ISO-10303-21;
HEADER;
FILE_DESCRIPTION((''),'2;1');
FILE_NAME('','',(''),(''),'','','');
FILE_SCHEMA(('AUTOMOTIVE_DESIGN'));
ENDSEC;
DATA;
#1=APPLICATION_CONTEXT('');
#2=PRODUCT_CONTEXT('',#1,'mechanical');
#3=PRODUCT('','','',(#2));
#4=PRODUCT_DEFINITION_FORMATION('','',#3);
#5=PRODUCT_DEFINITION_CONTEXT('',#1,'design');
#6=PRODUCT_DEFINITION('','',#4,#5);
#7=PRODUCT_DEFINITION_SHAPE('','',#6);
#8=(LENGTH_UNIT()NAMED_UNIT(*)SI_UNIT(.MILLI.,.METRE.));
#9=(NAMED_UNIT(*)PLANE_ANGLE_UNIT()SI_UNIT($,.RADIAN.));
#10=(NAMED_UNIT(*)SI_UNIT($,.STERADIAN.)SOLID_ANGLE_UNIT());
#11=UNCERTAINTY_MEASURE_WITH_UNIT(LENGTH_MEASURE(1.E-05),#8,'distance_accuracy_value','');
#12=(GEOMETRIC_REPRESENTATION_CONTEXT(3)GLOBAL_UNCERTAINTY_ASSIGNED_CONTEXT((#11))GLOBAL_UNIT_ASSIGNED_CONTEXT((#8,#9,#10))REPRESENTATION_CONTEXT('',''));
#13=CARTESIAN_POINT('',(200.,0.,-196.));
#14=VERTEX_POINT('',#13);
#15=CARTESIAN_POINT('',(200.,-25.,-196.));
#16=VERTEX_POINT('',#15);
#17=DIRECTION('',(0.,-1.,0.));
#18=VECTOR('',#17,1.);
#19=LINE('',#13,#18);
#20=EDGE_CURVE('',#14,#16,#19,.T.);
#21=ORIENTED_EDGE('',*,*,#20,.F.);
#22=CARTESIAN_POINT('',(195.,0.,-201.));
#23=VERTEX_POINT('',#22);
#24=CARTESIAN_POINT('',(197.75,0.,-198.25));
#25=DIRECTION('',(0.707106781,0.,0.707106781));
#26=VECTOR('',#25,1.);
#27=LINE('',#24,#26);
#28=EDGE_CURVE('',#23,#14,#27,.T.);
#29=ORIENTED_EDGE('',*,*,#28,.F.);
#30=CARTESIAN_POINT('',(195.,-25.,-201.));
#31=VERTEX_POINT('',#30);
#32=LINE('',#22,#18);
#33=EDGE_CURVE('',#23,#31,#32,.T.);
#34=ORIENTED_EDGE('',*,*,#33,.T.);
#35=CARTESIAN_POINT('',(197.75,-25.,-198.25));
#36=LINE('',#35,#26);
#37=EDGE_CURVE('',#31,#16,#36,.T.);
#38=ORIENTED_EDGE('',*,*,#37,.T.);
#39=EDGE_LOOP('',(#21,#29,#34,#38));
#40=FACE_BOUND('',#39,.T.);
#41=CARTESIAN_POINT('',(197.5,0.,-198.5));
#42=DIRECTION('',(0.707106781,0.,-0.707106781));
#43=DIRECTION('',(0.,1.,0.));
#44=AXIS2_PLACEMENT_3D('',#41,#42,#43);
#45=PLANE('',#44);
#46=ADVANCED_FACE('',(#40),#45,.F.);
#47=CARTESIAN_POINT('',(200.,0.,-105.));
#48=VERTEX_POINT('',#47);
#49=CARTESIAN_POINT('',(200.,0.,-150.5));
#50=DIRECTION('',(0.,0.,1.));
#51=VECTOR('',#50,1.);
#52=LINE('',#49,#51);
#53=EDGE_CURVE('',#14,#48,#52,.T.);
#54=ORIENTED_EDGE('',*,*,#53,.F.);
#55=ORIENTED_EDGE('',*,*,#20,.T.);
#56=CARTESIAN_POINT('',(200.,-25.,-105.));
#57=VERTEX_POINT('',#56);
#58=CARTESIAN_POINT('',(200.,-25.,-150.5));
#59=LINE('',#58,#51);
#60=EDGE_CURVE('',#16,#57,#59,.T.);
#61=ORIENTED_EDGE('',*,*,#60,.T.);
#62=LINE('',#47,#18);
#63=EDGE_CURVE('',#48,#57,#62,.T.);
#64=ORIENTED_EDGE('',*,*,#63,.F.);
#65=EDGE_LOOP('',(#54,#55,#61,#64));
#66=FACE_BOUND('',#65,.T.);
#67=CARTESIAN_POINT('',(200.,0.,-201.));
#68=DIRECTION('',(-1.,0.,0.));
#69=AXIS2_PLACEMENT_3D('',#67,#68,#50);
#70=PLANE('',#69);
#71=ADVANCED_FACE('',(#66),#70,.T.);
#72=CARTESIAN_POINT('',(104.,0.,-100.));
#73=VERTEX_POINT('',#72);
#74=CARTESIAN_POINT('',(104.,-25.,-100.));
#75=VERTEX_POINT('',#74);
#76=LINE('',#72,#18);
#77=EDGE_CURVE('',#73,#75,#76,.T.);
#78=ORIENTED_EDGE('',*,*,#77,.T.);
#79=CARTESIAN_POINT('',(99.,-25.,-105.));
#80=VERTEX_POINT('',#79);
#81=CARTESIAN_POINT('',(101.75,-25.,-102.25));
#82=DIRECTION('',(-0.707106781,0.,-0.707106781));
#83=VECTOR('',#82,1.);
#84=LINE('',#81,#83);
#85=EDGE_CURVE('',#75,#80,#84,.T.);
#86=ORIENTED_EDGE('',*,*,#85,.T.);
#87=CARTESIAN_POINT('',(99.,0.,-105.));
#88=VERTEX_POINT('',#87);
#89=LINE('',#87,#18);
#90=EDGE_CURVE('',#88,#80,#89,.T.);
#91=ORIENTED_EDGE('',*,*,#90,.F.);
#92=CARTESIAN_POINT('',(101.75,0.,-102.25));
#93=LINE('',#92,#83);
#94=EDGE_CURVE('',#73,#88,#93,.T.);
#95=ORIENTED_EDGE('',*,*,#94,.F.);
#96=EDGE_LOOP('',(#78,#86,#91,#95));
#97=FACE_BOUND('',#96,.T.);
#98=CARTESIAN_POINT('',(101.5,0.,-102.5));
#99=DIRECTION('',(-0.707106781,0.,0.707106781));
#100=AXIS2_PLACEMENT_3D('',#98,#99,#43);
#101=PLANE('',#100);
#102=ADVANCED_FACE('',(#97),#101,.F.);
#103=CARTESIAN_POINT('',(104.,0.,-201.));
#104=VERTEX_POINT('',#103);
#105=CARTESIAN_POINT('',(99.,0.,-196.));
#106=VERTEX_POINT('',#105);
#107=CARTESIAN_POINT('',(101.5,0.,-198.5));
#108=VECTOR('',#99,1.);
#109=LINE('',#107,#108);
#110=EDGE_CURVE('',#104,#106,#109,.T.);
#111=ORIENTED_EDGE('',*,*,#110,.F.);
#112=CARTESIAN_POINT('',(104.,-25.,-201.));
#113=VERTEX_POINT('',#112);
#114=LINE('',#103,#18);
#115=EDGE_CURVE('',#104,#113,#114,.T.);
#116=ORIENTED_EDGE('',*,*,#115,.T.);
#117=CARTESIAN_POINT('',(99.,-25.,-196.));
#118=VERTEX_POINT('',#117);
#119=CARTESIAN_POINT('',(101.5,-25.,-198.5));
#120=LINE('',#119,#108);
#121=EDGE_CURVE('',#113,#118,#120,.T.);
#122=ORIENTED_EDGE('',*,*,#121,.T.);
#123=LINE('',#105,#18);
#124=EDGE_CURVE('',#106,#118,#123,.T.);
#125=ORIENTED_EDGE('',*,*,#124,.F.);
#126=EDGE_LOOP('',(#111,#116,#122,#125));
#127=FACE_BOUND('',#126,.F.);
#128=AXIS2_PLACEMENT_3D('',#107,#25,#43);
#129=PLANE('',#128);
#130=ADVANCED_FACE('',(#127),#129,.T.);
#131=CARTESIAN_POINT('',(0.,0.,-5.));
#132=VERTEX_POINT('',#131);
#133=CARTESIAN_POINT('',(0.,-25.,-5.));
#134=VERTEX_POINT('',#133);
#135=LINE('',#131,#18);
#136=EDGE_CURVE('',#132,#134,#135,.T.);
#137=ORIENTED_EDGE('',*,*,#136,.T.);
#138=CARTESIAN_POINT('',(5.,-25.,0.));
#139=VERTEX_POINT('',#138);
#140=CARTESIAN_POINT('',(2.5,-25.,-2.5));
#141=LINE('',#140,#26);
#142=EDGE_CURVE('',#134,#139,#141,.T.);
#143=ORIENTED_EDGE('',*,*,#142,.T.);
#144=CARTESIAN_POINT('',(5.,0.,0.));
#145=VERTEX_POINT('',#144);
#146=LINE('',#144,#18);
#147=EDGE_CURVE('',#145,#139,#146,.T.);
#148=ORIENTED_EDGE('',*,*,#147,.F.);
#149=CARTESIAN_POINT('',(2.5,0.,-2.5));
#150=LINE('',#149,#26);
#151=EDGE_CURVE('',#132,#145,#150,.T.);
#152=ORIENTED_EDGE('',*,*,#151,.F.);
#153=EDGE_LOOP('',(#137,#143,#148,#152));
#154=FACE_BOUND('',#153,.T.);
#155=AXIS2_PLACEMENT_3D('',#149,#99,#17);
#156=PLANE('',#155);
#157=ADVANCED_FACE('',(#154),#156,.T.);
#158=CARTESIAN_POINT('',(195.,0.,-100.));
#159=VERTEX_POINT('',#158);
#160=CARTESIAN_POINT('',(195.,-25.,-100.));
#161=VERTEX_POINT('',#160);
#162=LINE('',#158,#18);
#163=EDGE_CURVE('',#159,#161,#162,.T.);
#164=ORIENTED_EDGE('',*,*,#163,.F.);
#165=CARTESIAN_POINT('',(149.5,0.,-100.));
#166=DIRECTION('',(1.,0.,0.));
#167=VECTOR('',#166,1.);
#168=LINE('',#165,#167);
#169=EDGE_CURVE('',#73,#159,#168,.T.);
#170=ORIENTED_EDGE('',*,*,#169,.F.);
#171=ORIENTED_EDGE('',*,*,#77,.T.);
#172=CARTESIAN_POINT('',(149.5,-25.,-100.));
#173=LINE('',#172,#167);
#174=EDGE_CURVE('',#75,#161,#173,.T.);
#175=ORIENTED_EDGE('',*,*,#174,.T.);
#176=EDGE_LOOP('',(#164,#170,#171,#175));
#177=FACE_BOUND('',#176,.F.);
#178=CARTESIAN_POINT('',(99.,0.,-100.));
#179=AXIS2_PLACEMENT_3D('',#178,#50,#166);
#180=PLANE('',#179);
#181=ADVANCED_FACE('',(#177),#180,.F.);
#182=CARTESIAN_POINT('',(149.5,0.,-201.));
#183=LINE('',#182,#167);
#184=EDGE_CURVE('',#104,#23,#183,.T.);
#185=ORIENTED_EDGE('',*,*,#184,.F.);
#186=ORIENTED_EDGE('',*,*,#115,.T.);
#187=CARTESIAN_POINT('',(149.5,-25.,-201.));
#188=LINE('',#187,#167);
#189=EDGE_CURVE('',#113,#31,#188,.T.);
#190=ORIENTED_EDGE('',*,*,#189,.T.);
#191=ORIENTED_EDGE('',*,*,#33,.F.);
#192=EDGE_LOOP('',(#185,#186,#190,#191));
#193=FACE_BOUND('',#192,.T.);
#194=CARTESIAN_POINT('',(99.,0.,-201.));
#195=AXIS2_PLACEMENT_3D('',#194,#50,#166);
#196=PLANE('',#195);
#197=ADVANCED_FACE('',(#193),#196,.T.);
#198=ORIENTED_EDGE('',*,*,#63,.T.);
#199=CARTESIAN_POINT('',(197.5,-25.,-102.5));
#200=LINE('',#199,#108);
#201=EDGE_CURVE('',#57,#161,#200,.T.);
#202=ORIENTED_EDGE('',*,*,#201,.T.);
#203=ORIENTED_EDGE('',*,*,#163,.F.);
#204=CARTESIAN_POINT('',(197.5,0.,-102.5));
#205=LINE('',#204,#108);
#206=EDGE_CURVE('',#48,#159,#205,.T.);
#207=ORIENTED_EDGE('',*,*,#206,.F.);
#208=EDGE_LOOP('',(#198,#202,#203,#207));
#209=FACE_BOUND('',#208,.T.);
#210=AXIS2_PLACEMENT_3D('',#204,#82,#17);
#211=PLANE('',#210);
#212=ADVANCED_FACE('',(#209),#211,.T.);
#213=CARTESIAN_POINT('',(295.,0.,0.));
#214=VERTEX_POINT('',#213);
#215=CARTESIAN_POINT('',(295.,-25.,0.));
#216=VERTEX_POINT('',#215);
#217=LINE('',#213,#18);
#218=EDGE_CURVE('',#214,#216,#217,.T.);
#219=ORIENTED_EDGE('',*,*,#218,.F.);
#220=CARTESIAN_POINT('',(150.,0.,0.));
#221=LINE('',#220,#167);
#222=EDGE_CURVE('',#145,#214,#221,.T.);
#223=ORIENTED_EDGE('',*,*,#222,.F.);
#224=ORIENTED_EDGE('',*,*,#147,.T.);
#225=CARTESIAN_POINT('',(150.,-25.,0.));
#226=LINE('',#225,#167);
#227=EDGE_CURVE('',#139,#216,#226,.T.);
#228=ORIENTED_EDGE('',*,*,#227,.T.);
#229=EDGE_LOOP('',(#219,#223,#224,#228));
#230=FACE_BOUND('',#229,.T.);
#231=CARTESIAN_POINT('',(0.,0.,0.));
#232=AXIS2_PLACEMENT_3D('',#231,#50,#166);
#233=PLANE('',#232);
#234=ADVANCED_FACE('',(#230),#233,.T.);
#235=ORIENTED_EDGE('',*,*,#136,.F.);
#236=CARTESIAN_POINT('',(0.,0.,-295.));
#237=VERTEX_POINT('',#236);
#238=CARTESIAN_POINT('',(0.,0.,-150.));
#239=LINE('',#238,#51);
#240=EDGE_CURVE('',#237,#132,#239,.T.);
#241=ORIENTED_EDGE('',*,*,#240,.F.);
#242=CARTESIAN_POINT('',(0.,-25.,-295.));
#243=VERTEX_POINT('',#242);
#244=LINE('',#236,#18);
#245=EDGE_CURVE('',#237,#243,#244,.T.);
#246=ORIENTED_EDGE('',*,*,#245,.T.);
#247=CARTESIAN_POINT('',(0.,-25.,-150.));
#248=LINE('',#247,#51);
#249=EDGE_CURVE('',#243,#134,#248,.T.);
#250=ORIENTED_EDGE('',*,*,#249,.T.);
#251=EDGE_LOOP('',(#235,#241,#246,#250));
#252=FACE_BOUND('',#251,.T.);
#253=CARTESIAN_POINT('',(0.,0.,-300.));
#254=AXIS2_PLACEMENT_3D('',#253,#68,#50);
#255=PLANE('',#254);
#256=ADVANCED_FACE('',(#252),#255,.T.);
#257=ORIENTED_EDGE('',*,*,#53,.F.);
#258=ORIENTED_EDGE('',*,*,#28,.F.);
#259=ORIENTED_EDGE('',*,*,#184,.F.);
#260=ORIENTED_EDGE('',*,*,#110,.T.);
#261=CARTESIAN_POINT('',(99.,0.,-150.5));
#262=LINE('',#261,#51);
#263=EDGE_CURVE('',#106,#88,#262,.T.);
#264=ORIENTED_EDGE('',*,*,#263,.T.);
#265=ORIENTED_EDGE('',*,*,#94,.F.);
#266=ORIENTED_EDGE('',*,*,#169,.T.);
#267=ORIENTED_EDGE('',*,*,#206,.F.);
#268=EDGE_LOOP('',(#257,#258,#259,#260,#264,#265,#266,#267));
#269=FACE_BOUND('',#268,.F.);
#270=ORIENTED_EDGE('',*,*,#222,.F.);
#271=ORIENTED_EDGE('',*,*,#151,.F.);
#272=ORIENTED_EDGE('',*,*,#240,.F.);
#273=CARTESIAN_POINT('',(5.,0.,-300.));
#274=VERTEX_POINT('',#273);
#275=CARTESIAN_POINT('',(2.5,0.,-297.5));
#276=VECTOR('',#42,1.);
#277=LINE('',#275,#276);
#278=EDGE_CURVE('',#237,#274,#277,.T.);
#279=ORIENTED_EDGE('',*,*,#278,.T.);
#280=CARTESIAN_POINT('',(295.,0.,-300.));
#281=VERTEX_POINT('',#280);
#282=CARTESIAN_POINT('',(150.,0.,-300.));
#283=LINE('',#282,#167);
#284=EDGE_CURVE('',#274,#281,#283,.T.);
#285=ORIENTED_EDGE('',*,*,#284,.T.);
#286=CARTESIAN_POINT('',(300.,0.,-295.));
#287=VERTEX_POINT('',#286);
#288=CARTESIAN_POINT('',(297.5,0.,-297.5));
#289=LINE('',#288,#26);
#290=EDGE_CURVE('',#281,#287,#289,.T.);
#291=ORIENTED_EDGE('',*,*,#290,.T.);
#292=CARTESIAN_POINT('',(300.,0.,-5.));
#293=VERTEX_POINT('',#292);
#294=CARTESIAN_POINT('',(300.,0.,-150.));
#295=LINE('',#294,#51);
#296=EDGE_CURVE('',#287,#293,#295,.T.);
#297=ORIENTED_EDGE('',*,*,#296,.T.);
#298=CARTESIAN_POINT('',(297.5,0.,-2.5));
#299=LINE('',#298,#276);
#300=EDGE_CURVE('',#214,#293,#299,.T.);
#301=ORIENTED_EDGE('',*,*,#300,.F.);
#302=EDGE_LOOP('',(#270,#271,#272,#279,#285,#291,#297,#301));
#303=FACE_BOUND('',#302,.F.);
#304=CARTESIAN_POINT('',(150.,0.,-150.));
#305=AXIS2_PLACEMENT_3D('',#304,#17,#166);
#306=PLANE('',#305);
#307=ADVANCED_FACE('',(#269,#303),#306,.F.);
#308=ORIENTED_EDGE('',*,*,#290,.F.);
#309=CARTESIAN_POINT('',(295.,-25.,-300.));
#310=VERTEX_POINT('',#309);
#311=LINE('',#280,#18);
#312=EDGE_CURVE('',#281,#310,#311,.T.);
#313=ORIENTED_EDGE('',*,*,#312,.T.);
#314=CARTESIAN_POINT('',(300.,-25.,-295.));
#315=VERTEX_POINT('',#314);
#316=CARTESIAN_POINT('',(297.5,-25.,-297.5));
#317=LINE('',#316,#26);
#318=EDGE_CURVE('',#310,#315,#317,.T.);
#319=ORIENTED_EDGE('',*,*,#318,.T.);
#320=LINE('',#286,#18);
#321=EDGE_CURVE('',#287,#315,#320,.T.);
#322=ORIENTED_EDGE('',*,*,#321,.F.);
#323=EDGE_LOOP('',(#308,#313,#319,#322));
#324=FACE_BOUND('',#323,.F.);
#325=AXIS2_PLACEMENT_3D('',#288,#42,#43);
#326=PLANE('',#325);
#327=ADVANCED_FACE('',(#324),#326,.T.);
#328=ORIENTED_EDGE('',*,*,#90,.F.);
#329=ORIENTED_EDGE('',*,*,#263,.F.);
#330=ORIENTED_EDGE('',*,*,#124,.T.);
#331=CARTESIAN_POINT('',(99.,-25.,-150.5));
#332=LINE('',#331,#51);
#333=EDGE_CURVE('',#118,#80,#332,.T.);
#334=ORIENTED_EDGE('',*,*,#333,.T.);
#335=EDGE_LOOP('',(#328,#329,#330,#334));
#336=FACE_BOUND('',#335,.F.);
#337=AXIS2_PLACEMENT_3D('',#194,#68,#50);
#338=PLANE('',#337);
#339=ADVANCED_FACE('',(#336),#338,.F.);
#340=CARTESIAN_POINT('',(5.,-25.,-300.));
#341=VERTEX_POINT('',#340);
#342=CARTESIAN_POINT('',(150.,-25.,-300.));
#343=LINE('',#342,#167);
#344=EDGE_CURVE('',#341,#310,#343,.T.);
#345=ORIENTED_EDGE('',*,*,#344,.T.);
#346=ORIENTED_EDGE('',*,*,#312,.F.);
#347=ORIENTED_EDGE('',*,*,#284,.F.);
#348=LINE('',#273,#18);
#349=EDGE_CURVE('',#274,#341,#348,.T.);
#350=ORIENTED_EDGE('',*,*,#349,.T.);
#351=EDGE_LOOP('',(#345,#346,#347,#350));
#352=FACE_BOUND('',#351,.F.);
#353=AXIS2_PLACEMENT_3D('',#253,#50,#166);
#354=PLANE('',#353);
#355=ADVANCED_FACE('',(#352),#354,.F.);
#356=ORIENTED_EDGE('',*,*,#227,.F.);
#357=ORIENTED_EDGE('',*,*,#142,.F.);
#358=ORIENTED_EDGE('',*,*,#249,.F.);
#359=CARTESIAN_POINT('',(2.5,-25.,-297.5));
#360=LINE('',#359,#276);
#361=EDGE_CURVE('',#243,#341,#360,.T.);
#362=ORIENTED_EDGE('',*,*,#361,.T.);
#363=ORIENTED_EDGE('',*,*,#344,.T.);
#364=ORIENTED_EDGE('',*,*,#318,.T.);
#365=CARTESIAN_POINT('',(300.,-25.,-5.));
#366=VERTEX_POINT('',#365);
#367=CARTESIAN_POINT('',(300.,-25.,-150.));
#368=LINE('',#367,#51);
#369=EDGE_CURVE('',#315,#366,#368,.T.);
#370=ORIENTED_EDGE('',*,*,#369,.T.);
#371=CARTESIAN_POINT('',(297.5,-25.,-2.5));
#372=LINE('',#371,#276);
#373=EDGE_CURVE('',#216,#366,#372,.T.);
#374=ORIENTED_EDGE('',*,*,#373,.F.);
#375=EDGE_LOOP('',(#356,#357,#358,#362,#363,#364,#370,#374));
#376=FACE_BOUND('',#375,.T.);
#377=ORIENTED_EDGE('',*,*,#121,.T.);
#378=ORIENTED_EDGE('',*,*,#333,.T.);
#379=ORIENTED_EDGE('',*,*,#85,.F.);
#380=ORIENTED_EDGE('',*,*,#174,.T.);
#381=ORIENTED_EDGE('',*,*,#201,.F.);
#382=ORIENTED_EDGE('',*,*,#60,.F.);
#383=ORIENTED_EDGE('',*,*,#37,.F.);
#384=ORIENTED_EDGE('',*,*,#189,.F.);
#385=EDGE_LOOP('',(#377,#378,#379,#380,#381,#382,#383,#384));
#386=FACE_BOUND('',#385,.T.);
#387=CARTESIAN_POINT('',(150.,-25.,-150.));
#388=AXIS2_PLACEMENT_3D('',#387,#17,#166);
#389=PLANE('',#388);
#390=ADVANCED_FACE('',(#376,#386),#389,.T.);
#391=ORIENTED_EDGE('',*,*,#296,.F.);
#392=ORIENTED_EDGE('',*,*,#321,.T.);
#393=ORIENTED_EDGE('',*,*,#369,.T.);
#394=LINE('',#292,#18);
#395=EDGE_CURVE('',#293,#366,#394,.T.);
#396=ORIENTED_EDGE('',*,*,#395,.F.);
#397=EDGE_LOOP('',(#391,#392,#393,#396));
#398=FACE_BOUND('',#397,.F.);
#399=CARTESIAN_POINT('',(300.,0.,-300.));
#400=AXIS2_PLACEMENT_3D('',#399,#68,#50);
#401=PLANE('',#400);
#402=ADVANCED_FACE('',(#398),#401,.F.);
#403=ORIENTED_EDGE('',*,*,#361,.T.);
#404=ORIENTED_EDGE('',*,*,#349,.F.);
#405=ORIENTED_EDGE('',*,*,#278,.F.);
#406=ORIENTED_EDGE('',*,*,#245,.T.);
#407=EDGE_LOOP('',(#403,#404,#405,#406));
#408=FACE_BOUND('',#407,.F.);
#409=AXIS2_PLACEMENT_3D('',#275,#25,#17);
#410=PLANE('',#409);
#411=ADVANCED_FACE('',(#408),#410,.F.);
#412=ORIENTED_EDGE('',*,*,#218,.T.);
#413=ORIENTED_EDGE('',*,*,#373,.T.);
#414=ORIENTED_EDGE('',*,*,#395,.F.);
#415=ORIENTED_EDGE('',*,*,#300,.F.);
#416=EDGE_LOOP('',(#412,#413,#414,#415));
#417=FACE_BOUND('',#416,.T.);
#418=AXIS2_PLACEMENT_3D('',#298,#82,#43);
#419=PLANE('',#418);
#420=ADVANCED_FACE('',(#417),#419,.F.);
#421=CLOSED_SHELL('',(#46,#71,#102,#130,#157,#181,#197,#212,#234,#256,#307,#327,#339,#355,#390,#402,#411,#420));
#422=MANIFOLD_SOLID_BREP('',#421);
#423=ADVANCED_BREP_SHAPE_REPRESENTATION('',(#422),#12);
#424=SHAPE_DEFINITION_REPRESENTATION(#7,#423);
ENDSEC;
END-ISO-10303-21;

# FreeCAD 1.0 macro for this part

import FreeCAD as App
import Part
import Sketcher
from FreeCAD import Vector
Q = App.Units.Quantity


def edges_at(feature, points):
    """Names of the edges that pass closest to the given points."""
    edges = feature.Shape.Edges
    near = lambda p: min(range(len(edges)), key=lambda i: edges[i].distToShape(Part.Vertex(*p))[0])
    return sorted({f"Edge{near(p) + 1}" for p in points})

doc = App.newDocument("Part")
params = doc.addObject("Spreadsheet::Sheet", "Params")
for row, (alias, value) in enumerate([
    ("sketch1_width", "300 mm"),
    ("sketch1_width2", "101 mm"),
    ("pad1_length", "25 mm"),
    ("chamfer_size", "5 mm"),
], start=1):
    params.set(f"A{row}", alias)
    params.set(f"B{row}", "=" + value)
    params.setAlias(f"B{row}", alias)

body = doc.addObject("PartDesign::Body", "Body")

sketch1 = body.newObject("Sketcher::SketchObject", "Sketch")
sketch1.AttachmentSupport = (doc.getObject("XZ_Plane"), [""])
sketch1.MapMode = "FlatFace"
sketch1.addGeometry([
    Part.LineSegment(Vector(0, 0, 0), Vector(0, -300, 0)),
    Part.LineSegment(Vector(0, -300, 0), Vector(300, -300, 0)),
    Part.LineSegment(Vector(300, -300, 0), Vector(300, 0, 0)),
    Part.LineSegment(Vector(300, 0, 0), Vector(0, 0, 0)),
    Part.LineSegment(Vector(200, -201, 0), Vector(99, -201, 0)),
    Part.LineSegment(Vector(99, -201, 0), Vector(99, -100, 0)),
    Part.LineSegment(Vector(99, -100, 0), Vector(200, -100, 0)),
    Part.LineSegment(Vector(200, -100, 0), Vector(200, -201, 0)),
], False)
sketch1.addConstraint([
    Sketcher.Constraint("Coincident", 0, 2, 1, 1),
    Sketcher.Constraint("Coincident", 1, 2, 2, 1),
    Sketcher.Constraint("Coincident", 2, 2, 3, 1),
    Sketcher.Constraint("Coincident", 3, 2, 0, 1),
    Sketcher.Constraint("Coincident", 4, 2, 5, 1),
    Sketcher.Constraint("Coincident", 5, 2, 6, 1),
    Sketcher.Constraint("Coincident", 6, 2, 7, 1),
    Sketcher.Constraint("Coincident", 7, 2, 4, 1),
    Sketcher.Constraint("Vertical", 0),
    Sketcher.Constraint("Horizontal", 1),
    Sketcher.Constraint("Vertical", 2),
    Sketcher.Constraint("Horizontal", 3),
    Sketcher.Constraint("Horizontal", 4),
    Sketcher.Constraint("Vertical", 5),
    Sketcher.Constraint("Horizontal", 6),
    Sketcher.Constraint("Vertical", 7),
    Sketcher.Constraint("Coincident", 3, 2, -1, 1),
    Sketcher.Constraint("Equal", 3, 0),
    Sketcher.Constraint("Equal", 6, 5),
    Sketcher.Constraint("DistanceX", 1, 1, 1, 2, Q("300 mm")),
    Sketcher.Constraint("DistanceX", 4, 2, 4, 1, Q("101 mm")),
    Sketcher.Constraint("DistanceX", -1, 1, 4, 2, Q("99 mm")),
    Sketcher.Constraint("DistanceY", 4, 2, -1, 1, Q("201 mm")),
])
sketch1.setExpression("Constraints[19]", "Params.sketch1_width")
sketch1.setExpression("Constraints[20]", "Params.sketch1_width2")
pad1 = body.newObject("PartDesign::Pad", "Pad")
pad1.Profile = sketch1
pad1.setExpression("Length", "Params.pad1_length")
doc.recompute()

chamfer = body.newObject("PartDesign::Chamfer", "Chamfer")
chamfer.Base = (pad1, edges_at(pad1, [
    (0, -12.5, -300),
    (300, -12.5, -300),
    (300, -12.5, 0),
    (0, -12.5, 0),
    (200, -12.5, -201),
    (200, -12.5, -100),
    (99, -12.5, -100),
    (99, -12.5, -201),
]))
chamfer.setExpression("Size", "Params.chamfer_size")

doc.recompute()
